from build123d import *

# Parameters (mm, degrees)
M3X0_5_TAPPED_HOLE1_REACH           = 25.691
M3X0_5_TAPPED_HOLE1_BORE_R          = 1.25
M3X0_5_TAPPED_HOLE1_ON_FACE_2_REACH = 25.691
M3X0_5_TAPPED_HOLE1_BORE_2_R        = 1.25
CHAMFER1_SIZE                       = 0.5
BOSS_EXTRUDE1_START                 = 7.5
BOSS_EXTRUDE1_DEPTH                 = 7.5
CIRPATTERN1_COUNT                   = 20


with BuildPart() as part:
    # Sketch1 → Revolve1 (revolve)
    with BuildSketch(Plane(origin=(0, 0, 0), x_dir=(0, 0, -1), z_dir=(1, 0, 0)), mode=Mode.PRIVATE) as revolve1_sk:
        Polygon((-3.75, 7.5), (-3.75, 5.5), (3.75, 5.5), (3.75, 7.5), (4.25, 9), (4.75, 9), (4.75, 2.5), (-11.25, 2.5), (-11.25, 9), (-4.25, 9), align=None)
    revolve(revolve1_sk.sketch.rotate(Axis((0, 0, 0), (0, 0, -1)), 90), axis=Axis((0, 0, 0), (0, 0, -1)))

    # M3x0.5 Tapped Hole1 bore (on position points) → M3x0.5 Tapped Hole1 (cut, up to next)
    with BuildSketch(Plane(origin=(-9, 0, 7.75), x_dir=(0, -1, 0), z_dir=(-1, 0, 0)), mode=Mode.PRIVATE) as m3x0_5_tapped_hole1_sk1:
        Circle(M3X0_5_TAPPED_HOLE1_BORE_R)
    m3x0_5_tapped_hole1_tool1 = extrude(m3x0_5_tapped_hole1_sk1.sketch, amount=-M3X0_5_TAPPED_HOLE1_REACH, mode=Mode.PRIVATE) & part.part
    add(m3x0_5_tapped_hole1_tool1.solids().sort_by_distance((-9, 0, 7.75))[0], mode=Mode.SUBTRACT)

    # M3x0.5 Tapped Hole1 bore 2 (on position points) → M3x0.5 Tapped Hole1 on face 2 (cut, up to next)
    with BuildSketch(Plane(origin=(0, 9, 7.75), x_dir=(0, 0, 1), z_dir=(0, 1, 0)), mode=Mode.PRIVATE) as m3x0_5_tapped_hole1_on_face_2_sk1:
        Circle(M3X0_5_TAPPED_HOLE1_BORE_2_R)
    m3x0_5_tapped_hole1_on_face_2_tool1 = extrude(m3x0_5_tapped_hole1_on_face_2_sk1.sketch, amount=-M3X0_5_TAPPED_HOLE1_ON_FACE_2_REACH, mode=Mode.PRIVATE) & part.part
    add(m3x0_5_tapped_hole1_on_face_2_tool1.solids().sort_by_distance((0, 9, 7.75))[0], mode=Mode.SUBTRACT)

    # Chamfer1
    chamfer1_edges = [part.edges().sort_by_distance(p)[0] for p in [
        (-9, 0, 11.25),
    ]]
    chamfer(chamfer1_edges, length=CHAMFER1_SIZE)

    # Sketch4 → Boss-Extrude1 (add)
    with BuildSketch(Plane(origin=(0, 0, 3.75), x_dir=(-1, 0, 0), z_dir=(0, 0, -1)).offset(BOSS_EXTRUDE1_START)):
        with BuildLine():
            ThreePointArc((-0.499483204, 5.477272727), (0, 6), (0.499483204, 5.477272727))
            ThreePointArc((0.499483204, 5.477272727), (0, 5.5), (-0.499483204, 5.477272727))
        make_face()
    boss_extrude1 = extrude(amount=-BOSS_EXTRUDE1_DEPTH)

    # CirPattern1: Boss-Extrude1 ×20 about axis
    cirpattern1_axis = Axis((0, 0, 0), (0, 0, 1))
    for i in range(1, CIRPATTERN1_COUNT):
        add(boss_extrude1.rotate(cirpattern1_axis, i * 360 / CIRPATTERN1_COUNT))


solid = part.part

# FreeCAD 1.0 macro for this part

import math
import FreeCAD as App
import Part
import Sketcher

V = App.Vector


def edges_at(feature, points):
    """Names of the edges that pass closest to the given points."""
    edges = feature.Shape.Edges
    near = lambda p: min(range(len(edges)), key=lambda i: edges[i].distToShape(Part.Vertex(*p))[0])
    return sorted({f"Edge{near(p) + 1}" for p in points})


def add_polygon(sketch, points):
    """Adds a closed chain of lines whose ends are joined by coincident constraints."""
    first, n = sketch.GeometryCount, len(points)
    for a, b in zip(points, points[1:] + points[:1]):
        sketch.addGeometry(Part.LineSegment(App.Vector(*a, 0), App.Vector(*b, 0)), False)
    for i in range(n):
        sketch.addConstraint(Sketcher.Constraint("Coincident", first + i, 2, first + (i + 1) % n, 1))

doc = App.newDocument("Part")
body = doc.addObject("PartDesign::Body", "Body")

# Sketch on YZ plane
sketch1 = body.newObject("Sketcher::SketchObject", "Sketch")
sketch1.AttachmentSupport = (doc.getObject("YZ_Plane"), [""])
sketch1.MapMode = "FlatFace"
add_polygon(sketch1, [(5.5, 3.75), (7.5, 3.75), (9, 4.25), (9, 11.25), (2.5, 11.25), (2.5, -4.75), (9, -4.75), (9, -4.25), (7.5, -3.75), (5.5, -3.75)])  # lines 0-9
sketch1.addConstraint(Sketcher.Constraint("Horizontal", 0))
sketch1.addConstraint(Sketcher.Constraint("Vertical", 2))
sketch1.addConstraint(Sketcher.Constraint("Horizontal", 3))
sketch1.addConstraint(Sketcher.Constraint("Vertical", 4))
sketch1.addConstraint(Sketcher.Constraint("Horizontal", 5))
sketch1.addConstraint(Sketcher.Constraint("Vertical", 6))
sketch1.addConstraint(Sketcher.Constraint("Horizontal", 8))
sketch1.addConstraint(Sketcher.Constraint("Vertical", 9))
sketch1.addConstraint(Sketcher.Constraint("Symmetric", 1, 2, 6, 2, -1))
sketch1.addConstraint(Sketcher.Constraint("Symmetric", 0, 2, 7, 2, -1))
sketch1.addConstraint(Sketcher.Constraint("DistanceX", 0, 1, 0, 2, 2.0))
sketch1.addConstraint(Sketcher.Constraint("DistanceY", 2, 1, 2, 2, 7.0))
sketch1.addConstraint(Sketcher.Constraint("DistanceY", 4, 2, 4, 1, 16.0))
sketch1.addConstraint(Sketcher.Constraint("DistanceX", 3, 2, 3, 1, 6.5))
sketch1.addConstraint(Sketcher.Constraint("DistanceY", 6, 1, 6, 2, 0.5))
sketch1.addConstraint(Sketcher.Constraint("DistanceY", 9, 1, 9, 2, 7.5))
sketch1.addConstraint(Sketcher.Constraint("DistanceX", -1, 1, 1, 2, 9.0))
sketch1.addConstraint(Sketcher.Constraint("DistanceX", 3, 2, 0, 2, 5.0))
revolution = body.newObject("PartDesign::Revolution", "Revolution")
revolution.Profile = sketch1
revolution.ReferenceAxis = (sketch1, ["V_Axis"])
revolution.Angle = 360

# Sketch on YZ plane
sketch2 = body.newObject("Sketcher::SketchObject", "Sketch001")
sketch2.AttachmentSupport = (doc.getObject("YZ_Plane"), [""])
sketch2.MapMode = "FlatFace"
sketch2.AttachmentOffset = App.Placement(V(0, 0, -9), App.Rotation())
sketch2.addGeometry(Part.Circle(V(0, 7.75, 0), V(0, 0, 1), 1.25), False)
sketch2.addConstraint(Sketcher.Constraint("PointOnObject", 0, 3, -2))
sketch2.addConstraint(Sketcher.Constraint("Diameter", 0, 2.5))
sketch2.addConstraint(Sketcher.Constraint("DistanceY", -1, 1, 0, 3, 7.75))
pocket1 = body.newObject("PartDesign::Pocket", "Pocket")
pocket1.Profile = sketch2
pocket1.Type = "UpToFirst"
pocket1.Reversed = True

# Sketch on XZ plane
sketch3 = body.newObject("Sketcher::SketchObject", "Sketch002")
sketch3.AttachmentSupport = (doc.getObject("XZ_Plane"), [""])
sketch3.MapMode = "FlatFace"
sketch3.AttachmentOffset = App.Placement(V(0, 0, -9), App.Rotation())
sketch3.addGeometry(Part.Circle(V(0, 7.75, 0), V(0, 0, 1), 1.25), False)
sketch3.addConstraint(Sketcher.Constraint("PointOnObject", 0, 3, -2))
sketch3.addConstraint(Sketcher.Constraint("Diameter", 0, 2.5))
sketch3.addConstraint(Sketcher.Constraint("DistanceY", -1, 1, 0, 3, 7.75))
pocket2 = body.newObject("PartDesign::Pocket", "Pocket001")
pocket2.Profile = sketch3
pocket2.Type = "UpToFirst"
pocket2.Reversed = True
doc.recompute()

chamfer = body.newObject("PartDesign::Chamfer", "Chamfer")
chamfer.Base = (pocket2, edges_at(pocket2, [(-9, 0, 11.25)]))
chamfer.Size = 0.5

# Sketch on XY plane
sketch4 = body.newObject("Sketcher::SketchObject", "Sketch003")
sketch4.AttachmentSupport = (doc.getObject("XY_Plane"), [""])
sketch4.MapMode = "FlatFace"
sketch4.AttachmentOffset = App.Placement(V(0, 0, -3.75), App.Rotation())
sketch4.addGeometry(Part.ArcOfCircle(Part.Circle(V(0, 5.5, 0), V(0, 0, 1), 0.5), math.radians(-2.605251), math.radians(182.605251)), False)
sketch4.addGeometry(Part.ArcOfCircle(Part.Circle(V(0, 0, 0), V(0, 0, 1), 5.5), math.radians(84.789497), math.radians(95.210503)), False)
sketch4.addConstraint(Sketcher.Constraint("Coincident", 0, 1, 1, 1))
sketch4.addConstraint(Sketcher.Constraint("Coincident", 1, 2, 0, 2))
sketch4.addConstraint(Sketcher.Constraint("Coincident", 1, 3, -1, 1))
sketch4.addConstraint(Sketcher.Constraint("PointOnObject", 0, 3, -2))
sketch4.addConstraint(Sketcher.Constraint("Radius", 0, 0.5))
sketch4.addConstraint(Sketcher.Constraint("Radius", 1, 5.5))
sketch4.addConstraint(Sketcher.Constraint("DistanceY", -1, 1, 0, 3, 5.5))
pad1 = body.newObject("PartDesign::Pad", "Pad")
pad1.Profile = sketch4
pad1.Length = 7.5
doc.recompute()

polarpattern = body.newObject("PartDesign::PolarPattern", "PolarPattern")
polarpattern.Originals = [pad1]
polarpattern.Axis = (doc.getObject("Z_Axis"), [""])
polarpattern.Angle = 360
polarpattern.Occurrences = 20
body.Tip = polarpattern

doc.recompute()
